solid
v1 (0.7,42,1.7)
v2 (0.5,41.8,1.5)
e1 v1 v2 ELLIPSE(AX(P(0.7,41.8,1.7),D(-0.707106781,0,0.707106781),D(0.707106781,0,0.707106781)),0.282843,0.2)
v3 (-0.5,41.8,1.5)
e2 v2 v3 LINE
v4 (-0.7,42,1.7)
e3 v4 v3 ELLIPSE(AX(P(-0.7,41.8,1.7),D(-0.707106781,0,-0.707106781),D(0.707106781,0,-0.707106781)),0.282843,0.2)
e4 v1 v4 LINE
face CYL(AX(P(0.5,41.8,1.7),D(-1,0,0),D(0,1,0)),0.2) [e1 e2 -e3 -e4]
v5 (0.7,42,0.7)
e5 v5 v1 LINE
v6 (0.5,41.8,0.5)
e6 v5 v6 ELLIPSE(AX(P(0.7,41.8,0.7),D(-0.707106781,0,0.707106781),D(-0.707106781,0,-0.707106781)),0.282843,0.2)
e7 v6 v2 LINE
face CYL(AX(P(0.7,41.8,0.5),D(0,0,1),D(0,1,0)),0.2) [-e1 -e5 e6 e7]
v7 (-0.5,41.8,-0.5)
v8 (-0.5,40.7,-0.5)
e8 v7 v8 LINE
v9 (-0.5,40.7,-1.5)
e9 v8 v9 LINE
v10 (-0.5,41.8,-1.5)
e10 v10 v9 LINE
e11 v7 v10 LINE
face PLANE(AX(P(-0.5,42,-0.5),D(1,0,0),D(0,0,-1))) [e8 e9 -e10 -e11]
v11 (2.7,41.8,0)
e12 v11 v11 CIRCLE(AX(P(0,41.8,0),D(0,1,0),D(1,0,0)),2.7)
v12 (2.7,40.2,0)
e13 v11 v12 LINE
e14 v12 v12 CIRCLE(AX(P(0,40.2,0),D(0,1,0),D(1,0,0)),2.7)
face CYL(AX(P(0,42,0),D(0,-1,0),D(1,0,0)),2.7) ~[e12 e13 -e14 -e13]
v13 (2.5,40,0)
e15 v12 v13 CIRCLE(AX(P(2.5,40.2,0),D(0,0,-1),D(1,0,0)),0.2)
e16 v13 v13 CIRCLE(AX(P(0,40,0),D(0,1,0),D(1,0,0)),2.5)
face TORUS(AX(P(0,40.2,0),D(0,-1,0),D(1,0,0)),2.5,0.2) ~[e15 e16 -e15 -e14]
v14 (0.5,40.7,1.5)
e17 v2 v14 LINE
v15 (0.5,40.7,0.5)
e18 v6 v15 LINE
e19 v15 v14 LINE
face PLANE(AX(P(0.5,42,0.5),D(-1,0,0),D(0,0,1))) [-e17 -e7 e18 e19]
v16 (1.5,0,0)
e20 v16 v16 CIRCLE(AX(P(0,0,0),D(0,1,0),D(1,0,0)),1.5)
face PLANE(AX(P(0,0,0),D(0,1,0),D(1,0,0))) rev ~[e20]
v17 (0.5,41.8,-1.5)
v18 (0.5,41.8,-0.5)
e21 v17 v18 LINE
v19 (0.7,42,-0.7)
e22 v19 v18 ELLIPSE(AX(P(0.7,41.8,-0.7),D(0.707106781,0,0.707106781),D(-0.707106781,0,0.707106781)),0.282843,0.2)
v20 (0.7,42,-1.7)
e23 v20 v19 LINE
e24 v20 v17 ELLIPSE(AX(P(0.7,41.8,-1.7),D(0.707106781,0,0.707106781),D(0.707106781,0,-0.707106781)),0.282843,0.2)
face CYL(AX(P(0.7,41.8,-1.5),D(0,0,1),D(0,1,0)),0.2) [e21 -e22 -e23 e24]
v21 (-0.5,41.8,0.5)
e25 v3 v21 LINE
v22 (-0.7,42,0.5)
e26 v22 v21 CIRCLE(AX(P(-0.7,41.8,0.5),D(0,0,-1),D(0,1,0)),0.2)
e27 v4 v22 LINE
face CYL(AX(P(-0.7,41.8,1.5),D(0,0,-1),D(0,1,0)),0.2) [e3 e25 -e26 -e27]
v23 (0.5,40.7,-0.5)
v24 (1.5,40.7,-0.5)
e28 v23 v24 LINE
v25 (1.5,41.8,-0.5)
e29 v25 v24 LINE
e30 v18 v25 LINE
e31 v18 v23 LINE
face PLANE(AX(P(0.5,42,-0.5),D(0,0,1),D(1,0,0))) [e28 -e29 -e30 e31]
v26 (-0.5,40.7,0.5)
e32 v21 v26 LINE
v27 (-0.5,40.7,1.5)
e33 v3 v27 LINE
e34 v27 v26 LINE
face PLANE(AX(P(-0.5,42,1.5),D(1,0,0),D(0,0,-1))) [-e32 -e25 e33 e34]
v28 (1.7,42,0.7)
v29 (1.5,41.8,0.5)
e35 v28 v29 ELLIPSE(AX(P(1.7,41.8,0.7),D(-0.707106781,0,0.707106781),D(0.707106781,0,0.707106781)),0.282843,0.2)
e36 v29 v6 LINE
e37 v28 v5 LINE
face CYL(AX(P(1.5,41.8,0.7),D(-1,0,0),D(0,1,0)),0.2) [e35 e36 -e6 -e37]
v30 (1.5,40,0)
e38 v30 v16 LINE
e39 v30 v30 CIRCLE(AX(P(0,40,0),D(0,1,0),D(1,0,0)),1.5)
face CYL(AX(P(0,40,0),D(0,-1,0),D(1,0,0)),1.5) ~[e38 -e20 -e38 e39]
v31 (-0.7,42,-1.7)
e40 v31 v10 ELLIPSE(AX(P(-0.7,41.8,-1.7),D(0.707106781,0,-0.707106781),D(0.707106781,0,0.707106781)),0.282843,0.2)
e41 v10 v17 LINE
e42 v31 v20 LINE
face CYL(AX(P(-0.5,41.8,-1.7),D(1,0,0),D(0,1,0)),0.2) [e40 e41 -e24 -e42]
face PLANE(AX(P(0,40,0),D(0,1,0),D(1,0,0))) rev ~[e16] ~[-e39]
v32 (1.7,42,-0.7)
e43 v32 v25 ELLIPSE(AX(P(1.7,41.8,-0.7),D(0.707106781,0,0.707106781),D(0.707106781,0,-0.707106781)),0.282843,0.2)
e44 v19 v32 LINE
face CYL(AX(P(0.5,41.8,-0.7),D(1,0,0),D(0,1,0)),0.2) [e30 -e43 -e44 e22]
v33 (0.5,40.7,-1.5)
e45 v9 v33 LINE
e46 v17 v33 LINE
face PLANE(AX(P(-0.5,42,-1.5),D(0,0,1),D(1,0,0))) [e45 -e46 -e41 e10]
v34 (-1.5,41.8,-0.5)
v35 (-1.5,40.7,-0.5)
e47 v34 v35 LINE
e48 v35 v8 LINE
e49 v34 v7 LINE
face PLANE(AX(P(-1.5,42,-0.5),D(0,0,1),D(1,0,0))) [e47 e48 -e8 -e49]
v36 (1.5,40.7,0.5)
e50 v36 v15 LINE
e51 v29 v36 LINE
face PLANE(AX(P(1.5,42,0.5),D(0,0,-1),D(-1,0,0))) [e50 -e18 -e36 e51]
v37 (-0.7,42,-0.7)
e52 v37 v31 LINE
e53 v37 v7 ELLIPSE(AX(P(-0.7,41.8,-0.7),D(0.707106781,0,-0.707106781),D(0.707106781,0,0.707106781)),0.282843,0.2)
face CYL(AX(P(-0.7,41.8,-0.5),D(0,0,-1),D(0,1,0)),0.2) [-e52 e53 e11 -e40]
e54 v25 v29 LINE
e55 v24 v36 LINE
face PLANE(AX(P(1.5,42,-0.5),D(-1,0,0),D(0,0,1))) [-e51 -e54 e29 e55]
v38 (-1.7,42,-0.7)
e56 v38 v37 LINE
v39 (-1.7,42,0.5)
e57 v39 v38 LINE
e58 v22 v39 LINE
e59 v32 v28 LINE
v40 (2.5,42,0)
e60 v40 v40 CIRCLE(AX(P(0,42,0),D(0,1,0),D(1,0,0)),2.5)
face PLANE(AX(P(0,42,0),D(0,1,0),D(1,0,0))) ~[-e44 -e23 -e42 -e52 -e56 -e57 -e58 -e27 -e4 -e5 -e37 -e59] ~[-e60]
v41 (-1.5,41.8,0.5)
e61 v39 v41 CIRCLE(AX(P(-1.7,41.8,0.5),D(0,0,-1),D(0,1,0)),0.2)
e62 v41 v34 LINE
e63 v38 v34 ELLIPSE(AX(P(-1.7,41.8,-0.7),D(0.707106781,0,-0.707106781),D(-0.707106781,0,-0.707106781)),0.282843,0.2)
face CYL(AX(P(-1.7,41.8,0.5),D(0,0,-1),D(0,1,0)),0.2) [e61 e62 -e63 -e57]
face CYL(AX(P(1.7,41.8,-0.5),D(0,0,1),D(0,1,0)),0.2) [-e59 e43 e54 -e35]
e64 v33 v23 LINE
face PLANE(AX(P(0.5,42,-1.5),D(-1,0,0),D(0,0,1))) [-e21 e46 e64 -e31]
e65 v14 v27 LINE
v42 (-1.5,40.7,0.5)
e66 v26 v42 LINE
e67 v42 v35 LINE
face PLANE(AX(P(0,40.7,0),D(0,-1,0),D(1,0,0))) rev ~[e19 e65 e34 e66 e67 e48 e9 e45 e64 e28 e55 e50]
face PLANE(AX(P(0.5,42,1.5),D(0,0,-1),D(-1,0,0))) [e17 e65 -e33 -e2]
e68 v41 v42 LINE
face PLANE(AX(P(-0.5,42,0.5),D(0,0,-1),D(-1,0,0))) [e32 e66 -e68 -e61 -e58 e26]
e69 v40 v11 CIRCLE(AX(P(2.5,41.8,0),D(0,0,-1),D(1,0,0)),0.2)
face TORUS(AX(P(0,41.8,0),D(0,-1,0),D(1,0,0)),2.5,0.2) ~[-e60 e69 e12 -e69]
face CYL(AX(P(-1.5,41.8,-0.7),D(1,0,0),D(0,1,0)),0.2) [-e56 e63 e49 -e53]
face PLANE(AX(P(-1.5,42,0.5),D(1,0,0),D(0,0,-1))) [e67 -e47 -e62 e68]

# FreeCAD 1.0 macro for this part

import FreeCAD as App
import Part
import Sketcher


def edges_at(feature, points):
    """Names of the edges that pass closest to the given points."""
    edges = feature.Shape.Edges
    near = lambda p: min(range(len(edges)), key=lambda i: edges[i].distToShape(Part.Vertex(*p))[0])
    return sorted({f"Edge{near(p) + 1}" for p in points})

doc = App.newDocument("Part")
params = doc.addObject("Spreadsheet::Sheet", "Params")
for row, (alias, value) in enumerate([
    ("sketch1_height", "42 mm"),
    ("sketch1_height2", "40 mm"),
    ("sketch1_width", "1.5 mm"),
    ("sketch1_width2", "1.2 mm"),
    ("revolution_angle", "360 deg"),
    ("fillet_radius", "0.2 mm"),
    ("sketch2_width", "1 mm"),
    ("pocket1_length", "1.3 mm"),
    ("fillet2_radius", "0.2 mm"),
], start=1):
    params.set(f"A{row}", alias)
    params.set(f"B{row}", "=" + value)
    params.setAlias(f"B{row}", alias)

body = doc.addObject("PartDesign::Body", "Body")

# Sketch on XY plane
sketch1 = doc.addObject("Sketcher::SketchObject", "Sketch")
body.addObject(sketch1)
sketch1.AttachmentSupport = (doc.XY_Plane, [""])
sketch1.MapMode = "FlatFace"
sketch1.addGeometry([
    Part.LineSegment(App.Vector(0, 42, 0), App.Vector(0, 0, 0)),  # 0
    Part.LineSegment(App.Vector(0, 0, 0), App.Vector(1.5, 0, 0)),  # 1
    Part.LineSegment(App.Vector(1.5, 0, 0), App.Vector(1.5, 40, 0)),  # 2
    Part.LineSegment(App.Vector(1.5, 40, 0), App.Vector(2.7, 40, 0)),  # 3
    Part.LineSegment(App.Vector(2.7, 40, 0), App.Vector(2.7, 42, 0)),  # 4
    Part.LineSegment(App.Vector(2.7, 42, 0), App.Vector(0, 42, 0)),  # 5
], False)
sketch1.addConstraint([
    Sketcher.Constraint("Coincident", 0, 2, 1, 1),
    Sketcher.Constraint("Coincident", 1, 2, 2, 1),
    Sketcher.Constraint("Coincident", 2, 2, 3, 1),
    Sketcher.Constraint("Coincident", 3, 2, 4, 1),
    Sketcher.Constraint("Coincident", 4, 2, 5, 1),
    Sketcher.Constraint("Coincident", 5, 2, 0, 1),
    Sketcher.Constraint("Vertical", 0),
    Sketcher.Constraint("Horizontal", 1),
    Sketcher.Constraint("Vertical", 2),
    Sketcher.Constraint("Horizontal", 3),
    Sketcher.Constraint("Vertical", 4),
    Sketcher.Constraint("Horizontal", 5),
    Sketcher.Constraint("Coincident", 0, 2, -1, 1),
    Sketcher.Constraint("DistanceY", 0, 2, 0, 1, 42.0),
    Sketcher.Constraint("DistanceY", 2, 1, 2, 2, 40.0),
    Sketcher.Constraint("DistanceX", 1, 1, 1, 2, 1.5),
    Sketcher.Constraint("DistanceX", 3, 1, 3, 2, 1.2),
])
sketch1.setExpression("Constraints[13]", "Params.sketch1_height")
sketch1.setExpression("Constraints[14]", "Params.sketch1_height2")
sketch1.setExpression("Constraints[15]", "Params.sketch1_width")
sketch1.setExpression("Constraints[16]", "Params.sketch1_width2")
revolution = doc.addObject("PartDesign::Revolution", "Revolution")
body.addObject(revolution)
revolution.Profile = sketch1
revolution.ReferenceAxis = (sketch1, ["V_Axis"])
revolution.setExpression("Angle", "Params.revolution_angle")
doc.recompute()

fillet = doc.addObject("PartDesign::Fillet", "Fillet")
body.addObject(fillet)
fillet.Base = (revolution, edges_at(revolution, [(-2.7, 40, 0), (-2.7, 42, 0)]))
fillet.setExpression("Radius", "Params.fillet_radius")

# Sketch on XZ plane
sketch2 = doc.addObject("Sketcher::SketchObject", "Sketch001")
body.addObject(sketch2)
sketch2.AttachmentSupport = (doc.XZ_Plane, [""])
sketch2.MapMode = "FlatFace"
sketch2.AttachmentOffset = App.Placement(App.Vector(0, 0, -42), App.Rotation())
sketch2.addGeometry([
    Part.LineSegment(App.Vector(-0.5, 0.5, 0), App.Vector(-0.5, 1.5, 0)),  # 0
    Part.LineSegment(App.Vector(-0.5, 1.5, 0), App.Vector(0.5, 1.5, 0)),  # 1
    Part.LineSegment(App.Vector(0.5, 1.5, 0), App.Vector(0.5, 0.5, 0)),  # 2
    Part.LineSegment(App.Vector(0.5, 0.5, 0), App.Vector(1.5, 0.5, 0)),  # 3
    Part.LineSegment(App.Vector(1.5, 0.5, 0), App.Vector(1.5, -0.5, 0)),  # 4
    Part.LineSegment(App.Vector(1.5, -0.5, 0), App.Vector(0.5, -0.5, 0)),  # 5
    Part.LineSegment(App.Vector(0.5, -0.5, 0), App.Vector(0.5, -1.5, 0)),  # 6
    Part.LineSegment(App.Vector(0.5, -1.5, 0), App.Vector(-0.5, -1.5, 0)),  # 7
    Part.LineSegment(App.Vector(-0.5, -1.5, 0), App.Vector(-0.5, -0.5, 0)),  # 8
    Part.LineSegment(App.Vector(-0.5, -0.5, 0), App.Vector(-1.5, -0.5, 0)),  # 9
    Part.LineSegment(App.Vector(-1.5, -0.5, 0), App.Vector(-1.5, 0.5, 0)),  # 10
    Part.LineSegment(App.Vector(-1.5, 0.5, 0), App.Vector(-0.5, 0.5, 0)),  # 11
], False)
sketch2.addConstraint([
    Sketcher.Constraint("Coincident", 0, 2, 1, 1),
    Sketcher.Constraint("Coincident", 1, 2, 2, 1),
    Sketcher.Constraint("Coincident", 2, 2, 3, 1),
    Sketcher.Constraint("Coincident", 3, 2, 4, 1),
    Sketcher.Constraint("Coincident", 4, 2, 5, 1),
    Sketcher.Constraint("Coincident", 5, 2, 6, 1),
    Sketcher.Constraint("Coincident", 6, 2, 7, 1),
    Sketcher.Constraint("Coincident", 7, 2, 8, 1),
    Sketcher.Constraint("Coincident", 8, 2, 9, 1),
    Sketcher.Constraint("Coincident", 9, 2, 10, 1),
    Sketcher.Constraint("Coincident", 10, 2, 11, 1),
    Sketcher.Constraint("Coincident", 11, 2, 0, 1),
    Sketcher.Constraint("Vertical", 0),
    Sketcher.Constraint("Horizontal", 1),
    Sketcher.Constraint("Vertical", 2),
    Sketcher.Constraint("Horizontal", 3),
    Sketcher.Constraint("Vertical", 4),
    Sketcher.Constraint("Horizontal", 5),
    Sketcher.Constraint("Vertical", 6),
    Sketcher.Constraint("Horizontal", 7),
    Sketcher.Constraint("Vertical", 8),
    Sketcher.Constraint("Horizontal", 9),
    Sketcher.Constraint("Vertical", 10),
    Sketcher.Constraint("Horizontal", 11),
    Sketcher.Constraint("Symmetric", 0, 2, 6, 2, -1, 1),
    Sketcher.Constraint("Symmetric", 2, 2, 8, 2, -1, 1),
    Sketcher.Constraint("Symmetric", 4, 2, 10, 2, -1, 1),
    Sketcher.Constraint("Symmetric", 5, 2, 8, 2, -2),
    Sketcher.Constraint("Equal", 1, 3),
    Sketcher.Constraint("Equal", 11, 0),
    Sketcher.Constraint("Equal", 2, 4),
    Sketcher.Constraint("DistanceX", 1, 1, 1, 2, 1.0),
])
sketch2.setExpression("Constraints[31]", "Params.sketch2_width")
pocket1 = doc.addObject("PartDesign::Pocket", "Pocket")
body.addObject(pocket1)
pocket1.Profile = sketch2
pocket1.setExpression("Length", "Params.pocket1_length")
pocket1.Reversed = True
doc.recompute()

fillet2 = doc.addObject("PartDesign::Fillet", "Fillet001")
body.addObject(fillet2)
fillet2.Base = (pocket1, edges_at(pocket1, [
    (0, 42, -1.5),
    (0.5, 42, -1),
    (1, 42, -0.5),
    (1.5, 42, 0),
    (1, 42, 0.5),
    (0.5, 42, 1),
    (-0.5, 42, 1),
    (0, 42, 1.5),
    (-1.5, 42, 0),
    (-1, 42, -0.5),
    (-0.5, 42, -1),
]))
fillet2.setExpression("Radius", "Params.fillet2_radius")

doc.recompute()
